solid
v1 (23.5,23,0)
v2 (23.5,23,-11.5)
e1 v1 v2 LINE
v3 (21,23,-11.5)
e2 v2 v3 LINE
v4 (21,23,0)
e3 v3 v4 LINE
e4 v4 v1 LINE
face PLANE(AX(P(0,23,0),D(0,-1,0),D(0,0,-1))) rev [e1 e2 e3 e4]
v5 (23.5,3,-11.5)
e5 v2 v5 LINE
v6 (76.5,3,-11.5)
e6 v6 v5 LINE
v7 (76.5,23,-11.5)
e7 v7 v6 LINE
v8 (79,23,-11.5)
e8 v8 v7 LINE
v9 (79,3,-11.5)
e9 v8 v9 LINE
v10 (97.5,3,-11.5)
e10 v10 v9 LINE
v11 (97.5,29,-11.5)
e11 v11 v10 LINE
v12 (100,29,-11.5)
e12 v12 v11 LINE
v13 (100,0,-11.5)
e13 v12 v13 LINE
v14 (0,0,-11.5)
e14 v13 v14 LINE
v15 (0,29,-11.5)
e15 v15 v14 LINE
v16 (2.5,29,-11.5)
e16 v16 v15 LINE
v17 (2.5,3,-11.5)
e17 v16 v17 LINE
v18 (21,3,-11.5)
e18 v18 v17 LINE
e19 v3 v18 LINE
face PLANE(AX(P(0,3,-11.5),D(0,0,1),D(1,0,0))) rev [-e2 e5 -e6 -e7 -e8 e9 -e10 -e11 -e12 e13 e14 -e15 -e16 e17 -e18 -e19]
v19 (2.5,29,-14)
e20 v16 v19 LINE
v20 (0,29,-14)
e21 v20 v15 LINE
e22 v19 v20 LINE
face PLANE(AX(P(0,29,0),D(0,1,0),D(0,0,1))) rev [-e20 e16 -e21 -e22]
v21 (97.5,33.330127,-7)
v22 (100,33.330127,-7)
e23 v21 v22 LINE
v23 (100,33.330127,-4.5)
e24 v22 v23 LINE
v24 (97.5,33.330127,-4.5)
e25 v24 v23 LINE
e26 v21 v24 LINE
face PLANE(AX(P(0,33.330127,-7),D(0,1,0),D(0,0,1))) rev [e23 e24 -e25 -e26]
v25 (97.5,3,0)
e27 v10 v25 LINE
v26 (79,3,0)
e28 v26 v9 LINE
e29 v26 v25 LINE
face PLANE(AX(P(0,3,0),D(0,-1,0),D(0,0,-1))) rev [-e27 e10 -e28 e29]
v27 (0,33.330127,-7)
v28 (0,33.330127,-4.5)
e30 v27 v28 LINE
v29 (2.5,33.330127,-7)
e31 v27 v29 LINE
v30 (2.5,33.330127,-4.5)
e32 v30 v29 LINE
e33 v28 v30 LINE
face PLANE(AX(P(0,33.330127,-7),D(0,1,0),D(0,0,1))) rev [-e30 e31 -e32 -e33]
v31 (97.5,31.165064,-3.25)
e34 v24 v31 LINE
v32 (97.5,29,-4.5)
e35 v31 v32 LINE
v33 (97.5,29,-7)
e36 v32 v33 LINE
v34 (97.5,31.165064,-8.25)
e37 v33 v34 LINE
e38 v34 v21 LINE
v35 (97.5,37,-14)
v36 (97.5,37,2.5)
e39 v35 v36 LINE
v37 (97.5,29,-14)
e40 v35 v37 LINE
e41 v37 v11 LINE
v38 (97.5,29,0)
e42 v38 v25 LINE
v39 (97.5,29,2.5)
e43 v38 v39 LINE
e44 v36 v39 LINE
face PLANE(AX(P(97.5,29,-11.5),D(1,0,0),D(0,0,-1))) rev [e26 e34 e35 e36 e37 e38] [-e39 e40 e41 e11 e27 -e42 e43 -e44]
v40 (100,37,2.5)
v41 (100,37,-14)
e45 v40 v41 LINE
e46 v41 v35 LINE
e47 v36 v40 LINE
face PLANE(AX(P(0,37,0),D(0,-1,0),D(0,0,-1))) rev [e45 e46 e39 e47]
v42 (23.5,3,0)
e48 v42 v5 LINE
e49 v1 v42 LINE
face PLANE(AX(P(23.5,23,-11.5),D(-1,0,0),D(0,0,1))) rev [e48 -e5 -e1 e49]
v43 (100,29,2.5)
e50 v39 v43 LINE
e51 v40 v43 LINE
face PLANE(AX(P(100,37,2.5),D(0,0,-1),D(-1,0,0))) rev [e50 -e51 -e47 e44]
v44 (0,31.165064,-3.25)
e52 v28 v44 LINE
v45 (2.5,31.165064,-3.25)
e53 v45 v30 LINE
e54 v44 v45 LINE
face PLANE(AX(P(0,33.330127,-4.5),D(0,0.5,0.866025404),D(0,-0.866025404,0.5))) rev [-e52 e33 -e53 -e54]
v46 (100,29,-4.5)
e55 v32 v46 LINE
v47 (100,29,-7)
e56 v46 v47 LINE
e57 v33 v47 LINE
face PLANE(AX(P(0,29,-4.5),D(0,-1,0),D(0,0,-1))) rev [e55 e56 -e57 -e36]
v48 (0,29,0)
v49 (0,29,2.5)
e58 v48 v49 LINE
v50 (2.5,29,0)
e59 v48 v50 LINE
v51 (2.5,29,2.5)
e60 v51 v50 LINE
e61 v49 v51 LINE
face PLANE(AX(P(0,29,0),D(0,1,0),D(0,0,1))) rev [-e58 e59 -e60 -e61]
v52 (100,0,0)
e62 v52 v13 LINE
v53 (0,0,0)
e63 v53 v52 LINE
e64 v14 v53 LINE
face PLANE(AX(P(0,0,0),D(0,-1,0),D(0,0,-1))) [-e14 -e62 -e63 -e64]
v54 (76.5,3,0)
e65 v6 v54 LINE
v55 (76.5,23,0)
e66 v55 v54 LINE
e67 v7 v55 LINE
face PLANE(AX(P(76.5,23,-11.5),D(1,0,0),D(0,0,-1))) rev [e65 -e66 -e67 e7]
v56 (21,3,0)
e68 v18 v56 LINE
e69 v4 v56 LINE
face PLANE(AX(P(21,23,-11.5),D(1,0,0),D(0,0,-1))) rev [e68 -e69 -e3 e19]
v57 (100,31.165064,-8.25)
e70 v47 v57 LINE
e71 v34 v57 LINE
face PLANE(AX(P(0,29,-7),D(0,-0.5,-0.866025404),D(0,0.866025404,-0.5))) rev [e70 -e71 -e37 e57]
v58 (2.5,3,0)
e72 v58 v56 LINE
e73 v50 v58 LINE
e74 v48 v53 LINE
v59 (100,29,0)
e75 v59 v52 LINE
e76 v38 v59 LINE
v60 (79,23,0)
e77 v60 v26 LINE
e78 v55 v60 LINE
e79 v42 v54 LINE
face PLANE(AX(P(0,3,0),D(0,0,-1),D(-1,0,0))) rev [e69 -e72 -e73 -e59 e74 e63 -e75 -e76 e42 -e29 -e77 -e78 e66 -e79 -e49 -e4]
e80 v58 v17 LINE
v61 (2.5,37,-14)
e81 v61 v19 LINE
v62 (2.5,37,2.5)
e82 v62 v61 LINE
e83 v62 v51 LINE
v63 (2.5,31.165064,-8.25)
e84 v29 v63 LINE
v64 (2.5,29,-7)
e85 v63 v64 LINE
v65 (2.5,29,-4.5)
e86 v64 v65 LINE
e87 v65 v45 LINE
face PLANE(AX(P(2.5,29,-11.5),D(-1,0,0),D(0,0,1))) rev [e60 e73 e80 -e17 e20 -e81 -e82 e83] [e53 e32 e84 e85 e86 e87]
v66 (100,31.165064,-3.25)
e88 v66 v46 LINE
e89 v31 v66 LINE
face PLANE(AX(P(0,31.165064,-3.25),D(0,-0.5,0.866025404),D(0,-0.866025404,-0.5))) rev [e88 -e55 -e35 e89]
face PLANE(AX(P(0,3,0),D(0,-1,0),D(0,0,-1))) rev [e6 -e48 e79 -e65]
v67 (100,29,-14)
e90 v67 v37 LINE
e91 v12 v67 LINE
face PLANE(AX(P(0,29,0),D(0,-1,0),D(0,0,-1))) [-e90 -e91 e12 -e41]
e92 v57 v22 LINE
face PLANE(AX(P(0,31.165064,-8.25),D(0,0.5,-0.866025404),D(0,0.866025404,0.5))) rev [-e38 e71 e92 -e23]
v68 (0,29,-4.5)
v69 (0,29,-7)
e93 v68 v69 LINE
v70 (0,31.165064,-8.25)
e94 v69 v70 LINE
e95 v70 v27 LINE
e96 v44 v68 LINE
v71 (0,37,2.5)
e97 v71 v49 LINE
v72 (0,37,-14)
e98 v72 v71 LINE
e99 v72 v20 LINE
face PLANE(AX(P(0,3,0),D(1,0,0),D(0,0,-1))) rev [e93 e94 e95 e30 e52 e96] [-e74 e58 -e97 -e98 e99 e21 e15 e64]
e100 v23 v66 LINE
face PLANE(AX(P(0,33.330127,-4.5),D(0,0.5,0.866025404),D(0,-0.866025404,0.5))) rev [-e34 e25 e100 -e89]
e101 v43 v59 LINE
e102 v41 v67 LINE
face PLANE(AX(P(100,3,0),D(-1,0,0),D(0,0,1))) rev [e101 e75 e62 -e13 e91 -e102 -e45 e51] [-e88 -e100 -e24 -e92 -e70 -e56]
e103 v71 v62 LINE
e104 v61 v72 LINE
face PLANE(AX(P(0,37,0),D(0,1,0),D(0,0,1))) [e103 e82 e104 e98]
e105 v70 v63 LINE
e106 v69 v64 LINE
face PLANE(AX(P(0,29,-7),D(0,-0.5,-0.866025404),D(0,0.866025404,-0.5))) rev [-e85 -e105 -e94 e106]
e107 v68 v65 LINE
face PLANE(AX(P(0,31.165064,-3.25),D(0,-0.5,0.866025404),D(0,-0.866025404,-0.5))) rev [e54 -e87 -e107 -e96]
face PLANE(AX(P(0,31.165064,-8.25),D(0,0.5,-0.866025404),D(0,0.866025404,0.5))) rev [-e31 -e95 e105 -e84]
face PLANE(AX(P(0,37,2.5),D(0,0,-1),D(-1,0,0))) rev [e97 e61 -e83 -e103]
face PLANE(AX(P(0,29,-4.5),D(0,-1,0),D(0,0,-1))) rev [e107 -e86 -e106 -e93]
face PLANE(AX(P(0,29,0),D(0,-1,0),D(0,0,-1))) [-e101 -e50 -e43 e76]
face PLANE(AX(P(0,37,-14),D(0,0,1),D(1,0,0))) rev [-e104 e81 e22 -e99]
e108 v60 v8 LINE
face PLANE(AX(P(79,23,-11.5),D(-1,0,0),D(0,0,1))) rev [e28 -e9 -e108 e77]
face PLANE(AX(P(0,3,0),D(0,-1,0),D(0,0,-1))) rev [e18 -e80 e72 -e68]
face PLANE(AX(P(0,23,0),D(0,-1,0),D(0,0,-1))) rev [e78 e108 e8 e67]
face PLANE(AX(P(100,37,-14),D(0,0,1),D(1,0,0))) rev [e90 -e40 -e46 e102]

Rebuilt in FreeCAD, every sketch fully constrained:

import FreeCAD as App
import Part
import Sketcher

V = App.Vector
Q = App.Units.Quantity


def add_polygon(sketch, points):
    """Adds a closed chain of lines whose ends are joined by coincident constraints."""
    first, n = sketch.GeometryCount, len(points)
    for a, b in zip(points, points[1:] + points[:1]):
        sketch.addGeometry(Part.LineSegment(App.Vector(*a, 0), App.Vector(*b, 0)), False)
    for i in range(n):
        sketch.addConstraint(Sketcher.Constraint("Coincident", first + i, 2, first + (i + 1) % n, 1))

doc = App.newDocument("Part")
params = doc.addObject("Spreadsheet::Sheet", "Params")
for row, (alias, value) in enumerate([
    ("sketch1_width", "100 mm"),
    ("sketch1_height", "11.5 mm"),
    ("pad1_length", "3 mm"),
    ("sketch2_width", "2.5 mm"),
    ("sketch2_height", "11.5 mm"),
    ("pad2_length", "26 mm"),
    ("sketch3_width", "2.5 mm"),
    ("sketch3_height", "11.5 mm"),
    ("pad3_length", "20 mm"),
    ("sketch4_width", "2.5 mm"),
    ("sketch4_height", "16.5 mm"),
    ("pad4_length", "8 mm"),
    ("sketch5_height", "2.5 mm"),
], start=1):
    params.set(f"A{row}", alias)
    params.set(f"B{row}", "=" + value)
    params.setAlias(f"B{row}", alias)

body = doc.addObject("PartDesign::Body", "Body")

# Sketch on XZ plane
sketch1 = doc.addObject("Sketcher::SketchObject", "Sketch")
body.addObject(sketch1)
sketch1.AttachmentSupport = (doc.XZ_Plane, [""])
sketch1.MapMode = "FlatFace"
add_polygon(sketch1, [(0, -11.5), (0, 0), (100, 0), (100, -11.5)])  # lines 0-3
sketch1.addConstraint([
    Sketcher.Constraint("Vertical", 0),
    Sketcher.Constraint("Horizontal", 1),
    Sketcher.Constraint("Vertical", 2),
    Sketcher.Constraint("Horizontal", 3),
    Sketcher.Constraint("Coincident", 0, 2, -1, 1),
    Sketcher.Constraint("DistanceX", 1, 1, 1, 2, 100.0),
    Sketcher.Constraint("DistanceY", 0, 1, 0, 2, 11.5),
])
sketch1.setExpression("Constraints[9]", "Params.sketch1_width")
sketch1.setExpression("Constraints[10]", "Params.sketch1_height")
pad1 = doc.addObject("PartDesign::Pad", "Pad")
body.addObject(pad1)
pad1.Profile = sketch1
pad1.setExpression("Length", "Params.pad1_length")
pad1.Reversed = True

# Sketch on XZ plane
sketch2 = doc.addObject("Sketcher::SketchObject", "Sketch001")
body.addObject(sketch2)
sketch2.AttachmentSupport = (doc.XZ_Plane, [""])
sketch2.MapMode = "FlatFace"
sketch2.AttachmentOffset = App.Placement(V(0, 0, -3), App.Rotation())
add_polygon(sketch2, [(0, -11.5), (0, 0), (2.5, 0), (2.5, -11.5)])  # lines 0-3
add_polygon(sketch2, [(97.5, -11.5), (97.5, 0), (100, 0), (100, -11.5)])  # lines 4-7
sketch2.addConstraint([
    Sketcher.Constraint("Vertical", 0),
    Sketcher.Constraint("Horizontal", 1),
    Sketcher.Constraint("Vertical", 2),
    Sketcher.Constraint("Horizontal", 3),
    Sketcher.Constraint("Vertical", 4),
    Sketcher.Constraint("Horizontal", 5),
    Sketcher.Constraint("Vertical", 6),
    Sketcher.Constraint("Horizontal", 7),
    Sketcher.Constraint("Coincident", 0, 2, -1, 1),
    Sketcher.Constraint("PointOnObject", 4, 2, -1),
    Sketcher.Constraint("Horizontal", 3, 2, 6, 2),
    Sketcher.Constraint("Equal", 3, 5),
    Sketcher.Constraint("DistanceX", 1, 1, 1, 2, 2.5),
    Sketcher.Constraint("DistanceY", 0, 1, 0, 2, 11.5),
    Sketcher.Constraint("DistanceX", -1, 1, 5, 2, 100.0),
])
sketch2.setExpression("Constraints[20]", "Params.sketch2_width")
sketch2.setExpression("Constraints[21]", "Params.sketch2_height")
pad2 = doc.addObject("PartDesign::Pad", "Pad001")
body.addObject(pad2)
pad2.Profile = sketch2
pad2.setExpression("Length", "Params.pad2_length")
pad2.Reversed = True

# Sketch on XZ plane
sketch3 = doc.addObject("Sketcher::SketchObject", "Sketch002")
body.addObject(sketch3)
sketch3.AttachmentSupport = (doc.XZ_Plane, [""])
sketch3.MapMode = "FlatFace"
sketch3.AttachmentOffset = App.Placement(V(0, 0, -3), App.Rotation())
add_polygon(sketch3, [(21, -11.5), (21, 0), (23.5, 0), (23.5, -11.5)])  # lines 0-3
add_polygon(sketch3, [(76.5, -11.5), (76.5, 0), (79, 0), (79, -11.5)])  # lines 4-7
sketch3.addConstraint([
    Sketcher.Constraint("Vertical", 0),
    Sketcher.Constraint("Horizontal", 1),
    Sketcher.Constraint("Vertical", 2),
    Sketcher.Constraint("Horizontal", 3),
    Sketcher.Constraint("Vertical", 4),
    Sketcher.Constraint("Horizontal", 5),
    Sketcher.Constraint("Vertical", 6),
    Sketcher.Constraint("Horizontal", 7),
    Sketcher.Constraint("PointOnObject", 0, 2, -1),
    Sketcher.Constraint("PointOnObject", 4, 2, -1),
    Sketcher.Constraint("Horizontal", 3, 2, 6, 2),
    Sketcher.Constraint("Equal", 3, 5),
    Sketcher.Constraint("DistanceX", 1, 1, 1, 2, 2.5),
    Sketcher.Constraint("DistanceY", 0, 1, 0, 2, 11.5),
    Sketcher.Constraint("DistanceX", -1, 1, 0, 2, 21.0),
    Sketcher.Constraint("DistanceX", -1, 1, 5, 2, 79.0),
])
sketch3.setExpression("Constraints[20]", "Params.sketch3_width")
sketch3.setExpression("Constraints[21]", "Params.sketch3_height")
pad3 = doc.addObject("PartDesign::Pad", "Pad002")
body.addObject(pad3)
pad3.Profile = sketch3
pad3.setExpression("Length", "Params.pad3_length")
pad3.Reversed = True

# Sketch on XZ plane
sketch4 = doc.addObject("Sketcher::SketchObject", "Sketch003")
body.addObject(sketch4)
sketch4.AttachmentSupport = (doc.XZ_Plane, [""])
sketch4.MapMode = "FlatFace"
sketch4.AttachmentOffset = App.Placement(V(0, 0, -29), App.Rotation())
add_polygon(sketch4, [(0, -14), (0, 2.5), (2.5, 2.5), (2.5, -14)])  # lines 0-3
add_polygon(sketch4, [(97.5, -14), (97.5, 2.5), (100, 2.5), (100, -14)])  # lines 4-7
sketch4.addConstraint([
    Sketcher.Constraint("Vertical", 0),
    Sketcher.Constraint("Horizontal", 1),
    Sketcher.Constraint("Vertical", 2),
    Sketcher.Constraint("Horizontal", 3),
    Sketcher.Constraint("Vertical", 4),
    Sketcher.Constraint("Horizontal", 5),
    Sketcher.Constraint("Vertical", 6),
    Sketcher.Constraint("Horizontal", 7),
    Sketcher.Constraint("PointOnObject", 0, 2, -2),
    Sketcher.Constraint("Horizontal", 1, 2, 4, 2),
    Sketcher.Constraint("Horizontal", 3, 2, 6, 2),
    Sketcher.Constraint("Equal", 3, 5),
    Sketcher.Constraint("DistanceX", 1, 1, 1, 2, 2.5),
    Sketcher.Constraint("DistanceY", 0, 1, 0, 2, 16.5),
    Sketcher.Constraint("DistanceY", 2, 2, -1, 1, 14.0),
    Sketcher.Constraint("DistanceX", -1, 1, 5, 2, 100.0),
])
sketch4.setExpression("Constraints[20]", "Params.sketch4_width")
sketch4.setExpression("Constraints[21]", "Params.sketch4_height")
pad4 = doc.addObject("PartDesign::Pad", "Pad003")
body.addObject(pad4)
pad4.Profile = sketch4
pad4.setExpression("Length", "Params.pad4_length")
pad4.Reversed = True

# Sketch on YZ plane
sketch5 = doc.addObject("Sketcher::SketchObject", "Sketch004")
body.addObject(sketch5)
sketch5.AttachmentSupport = (doc.YZ_Plane, [""])
sketch5.MapMode = "FlatFace"
sketch5.AttachmentOffset = App.Placement(V(0, 0, 100), App.Rotation())
add_polygon(sketch5, [(31.165064, -8.25), (33.330127, -7), (33.330127, -4.5), (31.165064, -3.25), (29, -4.5), (29, -7)])  # lines 0-5
sketch5.addConstraint([
    Sketcher.Constraint("Vertical", 1),
    Sketcher.Constraint("Vertical", 4),
    Sketcher.Constraint("Parallel", 0, 3),
    Sketcher.Constraint("Parallel", 2, 5),
    Sketcher.Constraint("Horizontal", 1, 2, 3, 2),
    Sketcher.Constraint("Horizontal", 0, 2, 4, 2),
    Sketcher.Constraint("Vertical", 2, 2, 5, 2),
    Sketcher.Constraint("Angle", 0, Q("30 deg")),
    Sketcher.Constraint("DistanceY", 1, 1, 1, 2, 2.5),
    Sketcher.Constraint("DistanceY", 0, 2, -1, 1, 7.0),
    Sketcher.Constraint("DistanceX", -1, 1, 3, 2, 29.0),
    Sketcher.Constraint("DistanceY", 5, 2, 2, 2, 5.0),
])
sketch5.setExpression("Constraints[14]", "Params.sketch5_height")
pocket1 = doc.addObject("PartDesign::Pocket", "Pocket")
body.addObject(pocket1)
pocket1.Profile = sketch5
pocket1.Type = "ThroughAll"

doc.recompute()
